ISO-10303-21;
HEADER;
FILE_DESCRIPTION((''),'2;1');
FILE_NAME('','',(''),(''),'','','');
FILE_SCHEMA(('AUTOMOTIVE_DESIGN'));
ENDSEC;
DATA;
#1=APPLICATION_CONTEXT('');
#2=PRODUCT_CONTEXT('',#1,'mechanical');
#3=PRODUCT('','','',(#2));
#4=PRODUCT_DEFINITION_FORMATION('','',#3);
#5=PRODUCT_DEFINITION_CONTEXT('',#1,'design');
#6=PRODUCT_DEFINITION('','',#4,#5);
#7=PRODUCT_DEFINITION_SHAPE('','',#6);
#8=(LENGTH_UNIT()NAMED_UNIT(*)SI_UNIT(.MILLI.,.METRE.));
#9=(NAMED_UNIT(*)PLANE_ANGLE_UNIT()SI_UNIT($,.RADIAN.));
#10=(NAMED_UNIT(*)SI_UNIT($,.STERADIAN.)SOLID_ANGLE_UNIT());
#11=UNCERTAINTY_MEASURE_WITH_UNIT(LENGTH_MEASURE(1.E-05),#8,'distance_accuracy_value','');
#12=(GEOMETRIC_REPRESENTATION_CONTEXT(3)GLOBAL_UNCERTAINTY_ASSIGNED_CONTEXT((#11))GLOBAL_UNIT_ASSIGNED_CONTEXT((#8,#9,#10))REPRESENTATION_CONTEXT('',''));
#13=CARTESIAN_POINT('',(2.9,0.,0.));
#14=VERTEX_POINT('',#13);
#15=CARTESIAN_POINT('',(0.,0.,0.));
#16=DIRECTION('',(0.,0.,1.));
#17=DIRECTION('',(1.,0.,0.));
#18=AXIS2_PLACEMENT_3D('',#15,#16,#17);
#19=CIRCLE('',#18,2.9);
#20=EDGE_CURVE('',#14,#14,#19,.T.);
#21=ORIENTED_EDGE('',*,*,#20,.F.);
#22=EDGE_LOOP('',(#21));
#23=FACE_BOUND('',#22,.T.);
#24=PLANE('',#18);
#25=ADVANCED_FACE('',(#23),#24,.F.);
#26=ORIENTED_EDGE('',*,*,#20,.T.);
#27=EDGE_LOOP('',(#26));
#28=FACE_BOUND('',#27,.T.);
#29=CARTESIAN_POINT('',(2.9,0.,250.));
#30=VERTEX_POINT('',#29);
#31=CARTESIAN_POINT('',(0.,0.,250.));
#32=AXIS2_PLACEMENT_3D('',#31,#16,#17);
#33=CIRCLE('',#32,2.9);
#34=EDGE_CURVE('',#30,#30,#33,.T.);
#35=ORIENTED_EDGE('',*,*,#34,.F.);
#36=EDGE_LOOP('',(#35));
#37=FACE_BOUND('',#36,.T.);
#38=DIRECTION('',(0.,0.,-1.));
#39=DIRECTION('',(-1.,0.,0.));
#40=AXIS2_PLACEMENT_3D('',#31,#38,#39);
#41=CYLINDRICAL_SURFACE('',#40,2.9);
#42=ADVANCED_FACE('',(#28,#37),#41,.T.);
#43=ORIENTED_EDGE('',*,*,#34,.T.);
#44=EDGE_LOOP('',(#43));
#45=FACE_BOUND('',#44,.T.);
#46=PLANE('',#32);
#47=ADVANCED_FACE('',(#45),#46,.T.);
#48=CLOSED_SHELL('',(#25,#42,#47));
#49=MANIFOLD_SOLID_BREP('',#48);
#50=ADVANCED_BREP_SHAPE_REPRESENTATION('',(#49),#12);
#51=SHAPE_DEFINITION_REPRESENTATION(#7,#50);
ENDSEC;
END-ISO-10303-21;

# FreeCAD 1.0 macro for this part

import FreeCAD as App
import Part
import Sketcher

V = App.Vector

doc = App.newDocument("Part")
params = doc.addObject("Spreadsheet::Sheet", "Params")
for row, (alias, value) in enumerate([
    ("sketch1_diameter", "5.8 mm"),
    ("pad1_length", "250 mm"),
], start=1):
    params.set(f"A{row}", alias)
    params.set(f"B{row}", "=" + value)
    params.setAlias(f"B{row}", alias)

body = doc.addObject("PartDesign::Body", "Body")

sketch1 = body.newObject("Sketcher::SketchObject", "Sketch")
sketch1.AttachmentSupport = (doc.getObject("XY_Plane"), [""])
sketch1.MapMode = "FlatFace"
sketch1.addGeometry(Part.Circle(V(0, 0, 0), V(0, 0, 1), 2.9), False)
sketch1.addConstraint([
    Sketcher.Constraint("Coincident", 0, 3, -1, 1),
    Sketcher.Constraint("Diameter", 0, 5.8),
])
sketch1.setExpression("Constraints[1]", "Params.sketch1_diameter")
pad1 = body.newObject("PartDesign::Pad", "Pad")
pad1.Profile = sketch1
pad1.setExpression("Length", "Params.pad1_length")

doc.recompute()
